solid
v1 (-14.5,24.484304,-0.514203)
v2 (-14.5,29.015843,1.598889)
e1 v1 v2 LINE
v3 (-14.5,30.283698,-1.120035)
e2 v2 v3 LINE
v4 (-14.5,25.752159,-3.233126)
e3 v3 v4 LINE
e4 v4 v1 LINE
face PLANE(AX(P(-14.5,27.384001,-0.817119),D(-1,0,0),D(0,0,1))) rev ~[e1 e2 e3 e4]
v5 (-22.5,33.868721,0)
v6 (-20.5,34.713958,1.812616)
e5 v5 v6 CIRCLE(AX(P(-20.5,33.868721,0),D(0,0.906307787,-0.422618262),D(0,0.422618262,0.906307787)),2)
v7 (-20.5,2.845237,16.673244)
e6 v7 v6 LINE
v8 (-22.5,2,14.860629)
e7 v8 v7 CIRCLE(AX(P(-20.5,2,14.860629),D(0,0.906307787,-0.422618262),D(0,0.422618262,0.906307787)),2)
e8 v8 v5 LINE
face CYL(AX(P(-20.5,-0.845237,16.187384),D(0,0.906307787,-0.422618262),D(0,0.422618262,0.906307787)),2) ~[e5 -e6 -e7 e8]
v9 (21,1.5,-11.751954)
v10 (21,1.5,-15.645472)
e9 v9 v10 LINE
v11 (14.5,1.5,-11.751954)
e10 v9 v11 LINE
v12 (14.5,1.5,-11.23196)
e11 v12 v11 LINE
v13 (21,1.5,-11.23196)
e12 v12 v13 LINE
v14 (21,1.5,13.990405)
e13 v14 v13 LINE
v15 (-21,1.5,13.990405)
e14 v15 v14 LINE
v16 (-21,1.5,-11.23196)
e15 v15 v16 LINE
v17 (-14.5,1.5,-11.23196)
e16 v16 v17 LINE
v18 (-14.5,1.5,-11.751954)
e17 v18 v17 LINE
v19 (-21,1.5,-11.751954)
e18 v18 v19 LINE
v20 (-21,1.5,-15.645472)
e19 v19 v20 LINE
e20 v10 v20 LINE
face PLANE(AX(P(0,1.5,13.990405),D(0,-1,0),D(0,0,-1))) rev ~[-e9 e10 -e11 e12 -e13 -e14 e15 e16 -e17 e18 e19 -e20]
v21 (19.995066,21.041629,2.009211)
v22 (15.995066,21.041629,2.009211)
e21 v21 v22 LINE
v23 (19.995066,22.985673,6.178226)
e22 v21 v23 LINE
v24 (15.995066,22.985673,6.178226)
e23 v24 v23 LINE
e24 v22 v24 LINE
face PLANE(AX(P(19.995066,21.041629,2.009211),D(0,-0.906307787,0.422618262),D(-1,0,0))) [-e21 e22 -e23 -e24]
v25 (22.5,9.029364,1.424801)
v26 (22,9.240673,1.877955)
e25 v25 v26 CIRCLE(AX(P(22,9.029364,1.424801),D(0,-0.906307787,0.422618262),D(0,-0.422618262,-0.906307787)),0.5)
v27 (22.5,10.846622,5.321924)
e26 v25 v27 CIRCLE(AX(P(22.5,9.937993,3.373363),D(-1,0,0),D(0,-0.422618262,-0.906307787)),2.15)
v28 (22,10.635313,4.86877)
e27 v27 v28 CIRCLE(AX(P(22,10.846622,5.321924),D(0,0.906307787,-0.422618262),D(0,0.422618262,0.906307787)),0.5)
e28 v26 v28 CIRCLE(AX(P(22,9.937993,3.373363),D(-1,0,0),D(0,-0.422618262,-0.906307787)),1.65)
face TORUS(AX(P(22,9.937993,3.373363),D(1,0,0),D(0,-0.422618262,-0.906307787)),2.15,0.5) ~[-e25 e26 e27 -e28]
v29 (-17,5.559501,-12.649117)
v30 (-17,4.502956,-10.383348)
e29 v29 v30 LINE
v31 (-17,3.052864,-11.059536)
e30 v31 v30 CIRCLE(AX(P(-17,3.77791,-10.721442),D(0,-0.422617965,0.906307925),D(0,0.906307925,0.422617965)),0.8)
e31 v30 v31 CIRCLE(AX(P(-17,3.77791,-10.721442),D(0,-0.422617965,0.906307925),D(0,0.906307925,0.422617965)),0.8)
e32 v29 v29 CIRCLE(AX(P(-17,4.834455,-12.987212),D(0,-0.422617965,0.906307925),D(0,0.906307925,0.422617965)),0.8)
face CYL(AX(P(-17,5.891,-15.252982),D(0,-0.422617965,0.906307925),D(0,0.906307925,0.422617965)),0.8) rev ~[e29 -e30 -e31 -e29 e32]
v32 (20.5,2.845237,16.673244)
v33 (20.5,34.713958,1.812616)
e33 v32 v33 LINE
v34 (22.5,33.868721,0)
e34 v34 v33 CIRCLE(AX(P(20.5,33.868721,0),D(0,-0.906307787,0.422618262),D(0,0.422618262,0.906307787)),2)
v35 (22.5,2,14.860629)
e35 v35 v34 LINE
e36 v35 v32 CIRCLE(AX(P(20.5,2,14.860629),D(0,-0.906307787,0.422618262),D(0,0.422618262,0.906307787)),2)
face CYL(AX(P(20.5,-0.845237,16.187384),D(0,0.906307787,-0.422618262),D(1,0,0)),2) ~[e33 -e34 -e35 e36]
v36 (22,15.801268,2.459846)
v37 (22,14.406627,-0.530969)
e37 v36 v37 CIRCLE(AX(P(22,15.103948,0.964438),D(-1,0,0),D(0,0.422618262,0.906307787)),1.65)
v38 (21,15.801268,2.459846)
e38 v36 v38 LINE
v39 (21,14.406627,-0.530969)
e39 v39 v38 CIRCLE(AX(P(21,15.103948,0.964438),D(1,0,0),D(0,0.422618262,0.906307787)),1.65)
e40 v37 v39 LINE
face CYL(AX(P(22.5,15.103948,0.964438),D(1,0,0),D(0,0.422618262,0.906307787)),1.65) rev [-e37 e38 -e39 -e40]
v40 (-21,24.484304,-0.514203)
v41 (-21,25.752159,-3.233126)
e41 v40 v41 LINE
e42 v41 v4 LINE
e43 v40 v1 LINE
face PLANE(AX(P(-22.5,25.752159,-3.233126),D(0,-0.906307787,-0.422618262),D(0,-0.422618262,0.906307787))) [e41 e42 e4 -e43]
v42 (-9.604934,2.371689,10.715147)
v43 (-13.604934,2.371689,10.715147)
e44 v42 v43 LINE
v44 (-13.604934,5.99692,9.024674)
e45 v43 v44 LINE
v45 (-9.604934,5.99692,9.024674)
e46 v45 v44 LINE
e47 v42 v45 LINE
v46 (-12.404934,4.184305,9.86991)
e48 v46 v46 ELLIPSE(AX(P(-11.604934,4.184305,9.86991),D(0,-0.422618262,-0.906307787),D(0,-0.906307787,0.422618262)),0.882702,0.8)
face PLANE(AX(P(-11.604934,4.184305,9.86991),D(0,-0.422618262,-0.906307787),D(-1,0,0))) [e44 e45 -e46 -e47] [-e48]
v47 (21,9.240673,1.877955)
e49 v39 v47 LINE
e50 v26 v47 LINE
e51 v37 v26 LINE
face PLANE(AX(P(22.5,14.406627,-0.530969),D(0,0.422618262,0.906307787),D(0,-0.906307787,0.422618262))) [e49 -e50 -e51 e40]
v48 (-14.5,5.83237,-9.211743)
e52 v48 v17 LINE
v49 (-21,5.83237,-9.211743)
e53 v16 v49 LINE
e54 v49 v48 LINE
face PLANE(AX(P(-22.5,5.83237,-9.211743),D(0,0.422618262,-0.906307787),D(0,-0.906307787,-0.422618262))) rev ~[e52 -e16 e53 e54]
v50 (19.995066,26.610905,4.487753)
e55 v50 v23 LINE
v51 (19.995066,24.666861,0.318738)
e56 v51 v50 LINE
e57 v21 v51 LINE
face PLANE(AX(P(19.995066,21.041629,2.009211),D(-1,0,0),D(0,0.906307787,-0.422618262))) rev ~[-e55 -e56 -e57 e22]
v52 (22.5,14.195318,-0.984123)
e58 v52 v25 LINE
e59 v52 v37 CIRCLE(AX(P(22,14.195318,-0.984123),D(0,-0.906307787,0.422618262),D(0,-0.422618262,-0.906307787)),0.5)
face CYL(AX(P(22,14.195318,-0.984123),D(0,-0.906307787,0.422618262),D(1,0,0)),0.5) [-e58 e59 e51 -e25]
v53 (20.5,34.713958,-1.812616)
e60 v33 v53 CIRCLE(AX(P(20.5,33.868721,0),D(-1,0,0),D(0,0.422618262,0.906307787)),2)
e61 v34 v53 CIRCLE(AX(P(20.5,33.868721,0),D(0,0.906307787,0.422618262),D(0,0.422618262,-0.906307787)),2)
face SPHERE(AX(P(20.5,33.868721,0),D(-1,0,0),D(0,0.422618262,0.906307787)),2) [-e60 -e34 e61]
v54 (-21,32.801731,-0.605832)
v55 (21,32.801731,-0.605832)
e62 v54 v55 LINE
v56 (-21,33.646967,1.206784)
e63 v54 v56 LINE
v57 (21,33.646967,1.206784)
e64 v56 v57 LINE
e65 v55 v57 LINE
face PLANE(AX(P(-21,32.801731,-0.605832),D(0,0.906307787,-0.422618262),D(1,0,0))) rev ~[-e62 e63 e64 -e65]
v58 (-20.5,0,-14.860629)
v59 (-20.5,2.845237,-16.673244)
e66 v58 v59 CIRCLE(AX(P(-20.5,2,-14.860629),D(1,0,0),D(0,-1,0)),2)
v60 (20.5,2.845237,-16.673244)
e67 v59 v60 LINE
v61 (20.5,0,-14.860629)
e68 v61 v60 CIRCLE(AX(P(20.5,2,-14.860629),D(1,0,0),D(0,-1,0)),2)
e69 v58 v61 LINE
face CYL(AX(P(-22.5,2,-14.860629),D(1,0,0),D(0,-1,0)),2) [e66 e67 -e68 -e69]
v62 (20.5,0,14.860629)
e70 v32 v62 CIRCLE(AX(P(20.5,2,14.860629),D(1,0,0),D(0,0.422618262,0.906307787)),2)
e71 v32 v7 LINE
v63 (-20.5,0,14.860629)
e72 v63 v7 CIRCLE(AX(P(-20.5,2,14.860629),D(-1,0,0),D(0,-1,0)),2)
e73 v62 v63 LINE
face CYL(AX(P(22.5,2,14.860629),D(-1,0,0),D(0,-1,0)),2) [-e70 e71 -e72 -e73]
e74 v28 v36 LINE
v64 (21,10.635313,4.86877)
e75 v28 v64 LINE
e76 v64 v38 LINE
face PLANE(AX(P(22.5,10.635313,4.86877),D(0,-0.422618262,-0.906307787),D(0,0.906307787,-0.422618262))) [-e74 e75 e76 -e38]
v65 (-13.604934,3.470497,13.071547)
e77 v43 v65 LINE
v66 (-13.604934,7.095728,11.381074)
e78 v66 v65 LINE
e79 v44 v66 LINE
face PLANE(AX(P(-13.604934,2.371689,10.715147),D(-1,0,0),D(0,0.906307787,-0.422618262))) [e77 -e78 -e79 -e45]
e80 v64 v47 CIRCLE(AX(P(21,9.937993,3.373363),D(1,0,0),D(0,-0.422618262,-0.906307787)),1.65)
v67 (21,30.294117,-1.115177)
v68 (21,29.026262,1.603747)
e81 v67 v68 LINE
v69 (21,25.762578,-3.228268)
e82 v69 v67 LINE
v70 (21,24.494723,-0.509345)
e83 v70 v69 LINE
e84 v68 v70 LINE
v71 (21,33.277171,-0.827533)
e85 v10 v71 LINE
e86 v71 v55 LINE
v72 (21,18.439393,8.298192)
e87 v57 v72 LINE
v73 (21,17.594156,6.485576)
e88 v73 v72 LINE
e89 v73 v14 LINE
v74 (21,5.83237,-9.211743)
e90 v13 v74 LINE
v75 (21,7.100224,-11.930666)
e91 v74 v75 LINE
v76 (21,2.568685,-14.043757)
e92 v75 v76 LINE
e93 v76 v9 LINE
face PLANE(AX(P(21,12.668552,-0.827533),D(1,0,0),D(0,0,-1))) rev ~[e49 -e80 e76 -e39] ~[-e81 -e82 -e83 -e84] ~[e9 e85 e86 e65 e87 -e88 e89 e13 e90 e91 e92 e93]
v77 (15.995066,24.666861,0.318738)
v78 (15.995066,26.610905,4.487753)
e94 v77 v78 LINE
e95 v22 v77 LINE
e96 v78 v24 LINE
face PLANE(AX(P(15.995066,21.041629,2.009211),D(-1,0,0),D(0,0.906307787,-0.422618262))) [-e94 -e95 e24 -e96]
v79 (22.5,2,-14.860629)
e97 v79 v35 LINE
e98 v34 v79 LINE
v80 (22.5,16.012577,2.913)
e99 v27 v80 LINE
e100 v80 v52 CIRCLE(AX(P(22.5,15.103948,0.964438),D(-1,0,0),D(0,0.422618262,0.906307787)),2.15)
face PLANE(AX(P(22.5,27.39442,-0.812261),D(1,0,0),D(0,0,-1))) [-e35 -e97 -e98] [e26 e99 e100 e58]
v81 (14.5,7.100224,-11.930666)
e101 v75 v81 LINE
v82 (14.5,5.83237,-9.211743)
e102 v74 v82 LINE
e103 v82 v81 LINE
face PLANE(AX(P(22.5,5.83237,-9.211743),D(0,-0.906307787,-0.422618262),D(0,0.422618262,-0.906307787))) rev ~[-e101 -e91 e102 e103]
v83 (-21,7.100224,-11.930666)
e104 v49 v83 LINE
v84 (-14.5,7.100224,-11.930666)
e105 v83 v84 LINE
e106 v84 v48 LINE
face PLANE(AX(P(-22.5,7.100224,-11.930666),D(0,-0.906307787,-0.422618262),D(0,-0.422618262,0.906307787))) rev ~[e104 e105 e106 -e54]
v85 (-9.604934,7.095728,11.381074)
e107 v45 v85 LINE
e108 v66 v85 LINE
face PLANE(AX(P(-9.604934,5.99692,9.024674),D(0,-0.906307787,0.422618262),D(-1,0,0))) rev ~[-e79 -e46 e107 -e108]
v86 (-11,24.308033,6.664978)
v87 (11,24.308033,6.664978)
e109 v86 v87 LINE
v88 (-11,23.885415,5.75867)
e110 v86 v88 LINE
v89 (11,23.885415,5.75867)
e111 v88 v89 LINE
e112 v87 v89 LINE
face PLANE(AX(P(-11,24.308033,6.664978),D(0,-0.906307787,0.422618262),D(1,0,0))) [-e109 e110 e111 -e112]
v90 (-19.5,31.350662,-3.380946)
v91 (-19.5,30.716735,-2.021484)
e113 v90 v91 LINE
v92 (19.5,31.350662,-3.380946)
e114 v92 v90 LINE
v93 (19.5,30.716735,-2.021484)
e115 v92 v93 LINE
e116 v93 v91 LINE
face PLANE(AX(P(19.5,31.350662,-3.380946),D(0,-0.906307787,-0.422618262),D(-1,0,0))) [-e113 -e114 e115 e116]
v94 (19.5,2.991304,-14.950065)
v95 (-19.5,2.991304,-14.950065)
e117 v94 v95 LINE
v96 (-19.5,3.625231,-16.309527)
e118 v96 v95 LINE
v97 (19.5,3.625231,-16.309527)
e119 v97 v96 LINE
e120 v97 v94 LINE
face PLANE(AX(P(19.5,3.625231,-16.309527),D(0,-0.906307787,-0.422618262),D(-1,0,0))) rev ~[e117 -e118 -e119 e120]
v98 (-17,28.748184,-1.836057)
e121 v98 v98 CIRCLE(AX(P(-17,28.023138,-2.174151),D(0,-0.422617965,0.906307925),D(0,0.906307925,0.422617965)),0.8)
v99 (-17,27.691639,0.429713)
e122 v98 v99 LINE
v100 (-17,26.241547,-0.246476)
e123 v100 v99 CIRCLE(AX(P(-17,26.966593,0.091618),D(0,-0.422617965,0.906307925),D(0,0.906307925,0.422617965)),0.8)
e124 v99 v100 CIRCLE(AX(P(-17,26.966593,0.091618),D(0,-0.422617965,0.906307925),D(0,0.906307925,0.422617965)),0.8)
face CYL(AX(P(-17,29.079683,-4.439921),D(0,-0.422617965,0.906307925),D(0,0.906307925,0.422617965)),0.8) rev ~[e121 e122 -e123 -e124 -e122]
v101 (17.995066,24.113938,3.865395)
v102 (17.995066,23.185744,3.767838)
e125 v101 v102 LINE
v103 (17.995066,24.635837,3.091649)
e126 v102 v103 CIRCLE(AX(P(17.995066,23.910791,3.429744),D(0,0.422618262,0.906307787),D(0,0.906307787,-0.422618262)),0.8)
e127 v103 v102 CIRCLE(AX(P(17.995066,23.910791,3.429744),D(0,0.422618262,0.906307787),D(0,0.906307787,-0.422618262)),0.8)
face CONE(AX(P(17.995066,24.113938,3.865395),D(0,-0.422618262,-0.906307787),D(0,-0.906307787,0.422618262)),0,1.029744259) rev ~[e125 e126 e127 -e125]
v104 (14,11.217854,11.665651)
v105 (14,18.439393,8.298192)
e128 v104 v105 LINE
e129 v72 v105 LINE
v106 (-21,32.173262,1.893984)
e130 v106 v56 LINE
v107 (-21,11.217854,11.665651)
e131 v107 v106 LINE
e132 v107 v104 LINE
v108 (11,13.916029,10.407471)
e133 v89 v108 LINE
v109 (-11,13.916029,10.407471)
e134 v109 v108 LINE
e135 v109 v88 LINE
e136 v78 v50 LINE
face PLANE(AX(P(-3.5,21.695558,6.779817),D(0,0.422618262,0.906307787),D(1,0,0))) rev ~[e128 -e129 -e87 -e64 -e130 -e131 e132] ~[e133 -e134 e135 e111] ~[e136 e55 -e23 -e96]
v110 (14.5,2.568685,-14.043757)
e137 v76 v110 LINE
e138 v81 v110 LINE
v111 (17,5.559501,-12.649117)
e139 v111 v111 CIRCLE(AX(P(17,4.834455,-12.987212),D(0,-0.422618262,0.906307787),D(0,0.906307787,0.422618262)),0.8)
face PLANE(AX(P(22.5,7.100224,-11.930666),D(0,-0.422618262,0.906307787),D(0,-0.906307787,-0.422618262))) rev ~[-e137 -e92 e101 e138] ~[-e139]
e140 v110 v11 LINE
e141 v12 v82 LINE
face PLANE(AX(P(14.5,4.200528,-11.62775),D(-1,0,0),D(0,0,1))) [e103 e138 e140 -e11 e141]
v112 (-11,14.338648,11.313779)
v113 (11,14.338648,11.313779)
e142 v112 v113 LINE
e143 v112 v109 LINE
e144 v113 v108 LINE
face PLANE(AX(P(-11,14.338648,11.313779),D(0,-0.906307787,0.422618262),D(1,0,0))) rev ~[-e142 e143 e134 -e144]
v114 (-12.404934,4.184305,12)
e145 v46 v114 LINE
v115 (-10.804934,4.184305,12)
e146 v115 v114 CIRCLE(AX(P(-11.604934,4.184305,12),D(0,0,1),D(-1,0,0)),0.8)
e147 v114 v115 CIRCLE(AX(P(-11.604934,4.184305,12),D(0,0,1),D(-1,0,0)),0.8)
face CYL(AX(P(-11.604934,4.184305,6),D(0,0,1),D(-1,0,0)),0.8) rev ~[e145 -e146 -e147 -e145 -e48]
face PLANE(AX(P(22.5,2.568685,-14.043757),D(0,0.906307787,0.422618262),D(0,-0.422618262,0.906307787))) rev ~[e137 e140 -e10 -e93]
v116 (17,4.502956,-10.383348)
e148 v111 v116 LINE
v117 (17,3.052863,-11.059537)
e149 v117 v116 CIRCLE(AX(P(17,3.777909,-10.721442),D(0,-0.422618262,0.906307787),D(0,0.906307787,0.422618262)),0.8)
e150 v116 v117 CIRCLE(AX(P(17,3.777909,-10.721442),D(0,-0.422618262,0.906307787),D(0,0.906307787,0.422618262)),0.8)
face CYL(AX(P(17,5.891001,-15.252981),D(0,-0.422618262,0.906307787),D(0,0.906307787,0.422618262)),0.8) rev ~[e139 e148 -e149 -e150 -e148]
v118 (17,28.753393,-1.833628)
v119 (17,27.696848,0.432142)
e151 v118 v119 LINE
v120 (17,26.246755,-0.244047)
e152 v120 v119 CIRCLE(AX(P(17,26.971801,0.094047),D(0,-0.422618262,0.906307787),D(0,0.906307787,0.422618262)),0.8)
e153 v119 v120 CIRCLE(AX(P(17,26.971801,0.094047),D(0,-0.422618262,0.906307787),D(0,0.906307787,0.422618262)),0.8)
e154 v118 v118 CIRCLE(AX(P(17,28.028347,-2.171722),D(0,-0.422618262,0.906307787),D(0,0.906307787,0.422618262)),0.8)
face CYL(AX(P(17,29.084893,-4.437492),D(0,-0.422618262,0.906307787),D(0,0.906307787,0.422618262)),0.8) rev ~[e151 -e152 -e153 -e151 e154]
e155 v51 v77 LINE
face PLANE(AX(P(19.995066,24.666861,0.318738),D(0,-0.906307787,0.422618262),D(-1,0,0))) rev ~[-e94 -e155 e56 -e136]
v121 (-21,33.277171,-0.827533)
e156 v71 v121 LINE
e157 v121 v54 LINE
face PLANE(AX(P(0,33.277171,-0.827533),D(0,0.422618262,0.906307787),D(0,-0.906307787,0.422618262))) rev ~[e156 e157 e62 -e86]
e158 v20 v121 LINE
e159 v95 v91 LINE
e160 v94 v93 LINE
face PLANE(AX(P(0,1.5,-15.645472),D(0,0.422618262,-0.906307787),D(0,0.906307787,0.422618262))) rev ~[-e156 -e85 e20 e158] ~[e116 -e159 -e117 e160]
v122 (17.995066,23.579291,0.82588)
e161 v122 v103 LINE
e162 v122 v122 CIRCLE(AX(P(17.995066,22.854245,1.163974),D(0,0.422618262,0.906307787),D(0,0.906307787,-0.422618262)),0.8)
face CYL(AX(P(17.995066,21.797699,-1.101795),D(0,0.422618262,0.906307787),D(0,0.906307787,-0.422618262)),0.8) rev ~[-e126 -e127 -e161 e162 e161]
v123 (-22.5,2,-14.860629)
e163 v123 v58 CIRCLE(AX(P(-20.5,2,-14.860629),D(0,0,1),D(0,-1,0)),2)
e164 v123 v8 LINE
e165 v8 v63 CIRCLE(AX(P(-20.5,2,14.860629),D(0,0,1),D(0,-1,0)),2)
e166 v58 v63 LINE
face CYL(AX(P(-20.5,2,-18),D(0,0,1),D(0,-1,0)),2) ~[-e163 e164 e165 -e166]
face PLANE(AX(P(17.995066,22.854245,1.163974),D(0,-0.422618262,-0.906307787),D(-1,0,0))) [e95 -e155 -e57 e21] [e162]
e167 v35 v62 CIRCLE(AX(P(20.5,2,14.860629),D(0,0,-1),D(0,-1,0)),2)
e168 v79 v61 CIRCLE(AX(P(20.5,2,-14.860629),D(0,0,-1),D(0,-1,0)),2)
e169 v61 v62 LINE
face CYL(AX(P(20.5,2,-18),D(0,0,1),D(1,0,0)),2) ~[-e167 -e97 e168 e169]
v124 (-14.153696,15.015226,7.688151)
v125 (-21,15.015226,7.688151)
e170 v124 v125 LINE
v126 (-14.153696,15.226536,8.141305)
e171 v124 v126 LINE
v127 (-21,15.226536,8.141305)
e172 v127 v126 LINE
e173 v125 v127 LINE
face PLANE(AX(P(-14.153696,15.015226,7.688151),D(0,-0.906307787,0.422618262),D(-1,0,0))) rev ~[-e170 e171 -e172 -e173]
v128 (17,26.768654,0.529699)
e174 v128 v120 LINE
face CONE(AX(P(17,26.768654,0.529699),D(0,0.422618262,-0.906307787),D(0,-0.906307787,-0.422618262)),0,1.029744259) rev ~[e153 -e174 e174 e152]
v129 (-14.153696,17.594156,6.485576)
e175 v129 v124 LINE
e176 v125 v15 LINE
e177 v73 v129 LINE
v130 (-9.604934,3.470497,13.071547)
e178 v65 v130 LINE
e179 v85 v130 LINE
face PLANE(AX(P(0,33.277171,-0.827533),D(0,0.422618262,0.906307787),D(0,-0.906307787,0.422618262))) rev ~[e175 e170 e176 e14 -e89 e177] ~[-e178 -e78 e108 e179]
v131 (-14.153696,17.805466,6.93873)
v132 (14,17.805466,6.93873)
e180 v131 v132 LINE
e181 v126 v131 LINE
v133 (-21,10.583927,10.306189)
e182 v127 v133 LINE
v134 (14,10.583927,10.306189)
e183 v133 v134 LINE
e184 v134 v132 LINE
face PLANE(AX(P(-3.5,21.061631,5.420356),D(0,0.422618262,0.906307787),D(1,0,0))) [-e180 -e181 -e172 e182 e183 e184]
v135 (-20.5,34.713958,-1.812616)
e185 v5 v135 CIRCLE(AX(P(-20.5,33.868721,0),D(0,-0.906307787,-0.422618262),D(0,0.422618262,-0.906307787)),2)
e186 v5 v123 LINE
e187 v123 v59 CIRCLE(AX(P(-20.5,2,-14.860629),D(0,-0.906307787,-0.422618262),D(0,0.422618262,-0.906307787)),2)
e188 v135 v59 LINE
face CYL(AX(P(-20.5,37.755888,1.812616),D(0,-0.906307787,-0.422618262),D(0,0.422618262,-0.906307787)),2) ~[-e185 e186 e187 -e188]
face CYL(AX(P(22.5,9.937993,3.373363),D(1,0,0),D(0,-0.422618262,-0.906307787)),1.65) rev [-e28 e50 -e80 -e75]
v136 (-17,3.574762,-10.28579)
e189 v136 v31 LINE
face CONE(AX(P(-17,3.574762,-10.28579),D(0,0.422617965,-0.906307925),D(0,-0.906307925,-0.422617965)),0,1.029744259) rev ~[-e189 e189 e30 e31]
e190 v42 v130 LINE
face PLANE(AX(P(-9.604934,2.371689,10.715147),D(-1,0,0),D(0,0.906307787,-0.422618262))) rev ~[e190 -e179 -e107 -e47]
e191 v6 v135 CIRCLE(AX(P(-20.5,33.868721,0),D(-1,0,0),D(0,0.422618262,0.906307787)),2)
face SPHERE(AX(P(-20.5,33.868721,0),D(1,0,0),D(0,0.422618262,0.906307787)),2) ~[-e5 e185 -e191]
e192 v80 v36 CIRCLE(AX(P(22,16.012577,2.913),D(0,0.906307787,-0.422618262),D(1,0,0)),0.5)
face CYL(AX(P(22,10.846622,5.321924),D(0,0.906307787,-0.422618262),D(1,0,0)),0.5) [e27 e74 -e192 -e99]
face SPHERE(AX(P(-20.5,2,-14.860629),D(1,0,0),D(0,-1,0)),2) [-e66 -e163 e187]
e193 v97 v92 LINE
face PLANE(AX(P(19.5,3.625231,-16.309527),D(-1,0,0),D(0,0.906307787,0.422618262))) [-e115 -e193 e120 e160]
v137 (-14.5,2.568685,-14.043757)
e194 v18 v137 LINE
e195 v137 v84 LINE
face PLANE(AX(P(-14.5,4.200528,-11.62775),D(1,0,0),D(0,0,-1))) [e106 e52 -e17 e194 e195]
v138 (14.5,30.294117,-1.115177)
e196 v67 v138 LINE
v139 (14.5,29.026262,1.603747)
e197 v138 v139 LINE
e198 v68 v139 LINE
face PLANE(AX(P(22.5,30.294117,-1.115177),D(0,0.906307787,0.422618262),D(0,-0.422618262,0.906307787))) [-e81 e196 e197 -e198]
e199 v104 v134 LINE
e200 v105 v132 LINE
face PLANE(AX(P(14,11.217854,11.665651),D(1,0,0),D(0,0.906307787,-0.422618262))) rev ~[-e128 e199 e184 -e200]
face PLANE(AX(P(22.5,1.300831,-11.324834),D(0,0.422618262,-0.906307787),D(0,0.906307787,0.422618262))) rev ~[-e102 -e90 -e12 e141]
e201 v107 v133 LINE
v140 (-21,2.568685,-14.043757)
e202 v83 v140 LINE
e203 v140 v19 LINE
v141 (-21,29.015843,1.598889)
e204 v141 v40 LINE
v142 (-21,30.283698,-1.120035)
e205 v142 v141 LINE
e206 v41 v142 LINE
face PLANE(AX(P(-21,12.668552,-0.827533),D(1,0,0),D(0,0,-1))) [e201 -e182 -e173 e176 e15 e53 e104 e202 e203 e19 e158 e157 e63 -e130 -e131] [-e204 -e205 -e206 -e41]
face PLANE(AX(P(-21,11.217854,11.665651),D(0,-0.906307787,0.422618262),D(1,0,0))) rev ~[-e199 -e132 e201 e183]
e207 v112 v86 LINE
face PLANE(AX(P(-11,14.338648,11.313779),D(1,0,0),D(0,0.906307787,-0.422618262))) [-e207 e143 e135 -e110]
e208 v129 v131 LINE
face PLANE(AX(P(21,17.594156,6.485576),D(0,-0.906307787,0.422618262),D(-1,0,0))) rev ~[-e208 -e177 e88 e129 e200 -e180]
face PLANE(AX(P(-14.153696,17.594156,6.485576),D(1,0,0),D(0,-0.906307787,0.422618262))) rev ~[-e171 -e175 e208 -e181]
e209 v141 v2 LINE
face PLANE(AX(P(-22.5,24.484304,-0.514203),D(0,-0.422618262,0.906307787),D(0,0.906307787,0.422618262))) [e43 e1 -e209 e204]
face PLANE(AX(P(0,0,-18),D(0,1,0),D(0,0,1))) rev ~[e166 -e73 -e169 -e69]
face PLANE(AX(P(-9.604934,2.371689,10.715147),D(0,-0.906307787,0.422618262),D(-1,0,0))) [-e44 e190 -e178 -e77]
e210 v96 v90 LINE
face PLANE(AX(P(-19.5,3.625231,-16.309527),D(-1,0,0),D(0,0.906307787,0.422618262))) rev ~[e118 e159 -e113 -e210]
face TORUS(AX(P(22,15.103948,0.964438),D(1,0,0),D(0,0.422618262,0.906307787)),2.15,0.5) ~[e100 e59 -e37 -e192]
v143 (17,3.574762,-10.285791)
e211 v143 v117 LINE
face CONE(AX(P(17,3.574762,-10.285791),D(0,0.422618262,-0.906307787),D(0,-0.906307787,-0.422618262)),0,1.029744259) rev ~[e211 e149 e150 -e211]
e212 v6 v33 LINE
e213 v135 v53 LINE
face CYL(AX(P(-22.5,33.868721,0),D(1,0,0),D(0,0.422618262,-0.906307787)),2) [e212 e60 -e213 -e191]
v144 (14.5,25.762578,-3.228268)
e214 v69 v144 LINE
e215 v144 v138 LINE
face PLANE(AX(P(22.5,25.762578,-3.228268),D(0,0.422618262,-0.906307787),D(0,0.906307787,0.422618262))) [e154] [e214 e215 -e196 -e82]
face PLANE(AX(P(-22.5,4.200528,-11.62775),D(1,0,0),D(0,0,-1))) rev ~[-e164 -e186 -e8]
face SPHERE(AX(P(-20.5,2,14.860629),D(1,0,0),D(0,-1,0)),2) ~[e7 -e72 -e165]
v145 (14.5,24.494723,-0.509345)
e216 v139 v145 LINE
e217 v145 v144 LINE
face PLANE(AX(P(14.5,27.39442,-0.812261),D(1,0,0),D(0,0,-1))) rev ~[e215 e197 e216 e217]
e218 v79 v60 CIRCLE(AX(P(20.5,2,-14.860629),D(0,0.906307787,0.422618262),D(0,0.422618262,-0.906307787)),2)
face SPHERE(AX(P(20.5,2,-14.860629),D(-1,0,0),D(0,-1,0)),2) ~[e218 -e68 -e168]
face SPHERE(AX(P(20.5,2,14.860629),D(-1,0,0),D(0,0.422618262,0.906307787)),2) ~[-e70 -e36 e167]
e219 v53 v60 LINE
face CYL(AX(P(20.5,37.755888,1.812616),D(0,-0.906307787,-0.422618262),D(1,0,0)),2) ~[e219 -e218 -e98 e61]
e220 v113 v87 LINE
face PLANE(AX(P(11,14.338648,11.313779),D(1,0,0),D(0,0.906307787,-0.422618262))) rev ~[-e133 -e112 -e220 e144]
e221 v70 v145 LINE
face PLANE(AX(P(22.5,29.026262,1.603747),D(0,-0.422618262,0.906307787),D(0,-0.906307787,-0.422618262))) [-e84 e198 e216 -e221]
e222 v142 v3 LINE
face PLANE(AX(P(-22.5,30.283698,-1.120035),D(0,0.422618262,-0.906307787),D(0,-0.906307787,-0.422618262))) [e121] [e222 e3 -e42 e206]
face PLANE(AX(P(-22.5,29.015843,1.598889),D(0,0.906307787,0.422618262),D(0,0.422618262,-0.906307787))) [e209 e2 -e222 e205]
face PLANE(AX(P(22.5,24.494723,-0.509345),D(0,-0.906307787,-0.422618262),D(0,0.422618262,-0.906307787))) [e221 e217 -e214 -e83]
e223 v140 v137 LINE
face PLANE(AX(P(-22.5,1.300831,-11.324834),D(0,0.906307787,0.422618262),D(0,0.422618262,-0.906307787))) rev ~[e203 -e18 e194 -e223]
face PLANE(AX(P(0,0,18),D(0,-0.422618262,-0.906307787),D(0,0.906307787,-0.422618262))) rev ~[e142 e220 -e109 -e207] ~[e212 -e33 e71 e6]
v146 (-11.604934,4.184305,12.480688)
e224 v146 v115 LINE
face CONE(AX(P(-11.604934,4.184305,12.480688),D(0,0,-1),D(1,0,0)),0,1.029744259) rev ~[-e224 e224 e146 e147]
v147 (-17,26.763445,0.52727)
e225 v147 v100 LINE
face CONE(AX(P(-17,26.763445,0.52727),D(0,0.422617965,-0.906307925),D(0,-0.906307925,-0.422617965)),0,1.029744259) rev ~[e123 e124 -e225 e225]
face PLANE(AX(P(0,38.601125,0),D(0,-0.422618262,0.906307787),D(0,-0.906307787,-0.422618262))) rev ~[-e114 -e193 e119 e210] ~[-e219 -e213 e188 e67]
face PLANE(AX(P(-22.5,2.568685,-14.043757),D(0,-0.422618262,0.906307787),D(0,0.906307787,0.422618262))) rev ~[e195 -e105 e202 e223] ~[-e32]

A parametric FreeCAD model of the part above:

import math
import FreeCAD as App
import Part
import Sketcher
from FreeCAD import Vector
Q = App.Units.Quantity


def edges_at(feature, points):
    """Names of the edges that pass closest to the given points."""
    edges = feature.Shape.Edges
    near = lambda p: min(range(len(edges)), key=lambda i: edges[i].distToShape(Part.Vertex(*p))[0])
    return sorted({f"Edge{near(p) + 1}" for p in points})


def add_polygon(sketch, points):
    """Adds a closed chain of lines whose ends are joined by coincident constraints."""
    first, n = sketch.GeometryCount, len(points)
    for a, b in zip(points, points[1:] + points[:1]):
        sketch.addGeometry(Part.LineSegment(App.Vector(*a, 0), App.Vector(*b, 0)), False)
    for i in range(n):
        sketch.addConstraint(Sketcher.Constraint("Coincident", first + i, 2, first + (i + 1) % n, 1))

doc = App.newDocument("Part")
body = doc.addObject("PartDesign::Body", "Body")

# Sketch on YZ plane
sketch1 = body.newObject("Sketcher::SketchObject", "Sketch")
sketch1.AttachmentSupport = (doc.getObject("YZ_Plane"), [""])
sketch1.MapMode = "FlatFace"
add_polygon(sketch1, [(0, 18), (0, -18), (38.601125, 0)])  # lines 0-2
sketch1.addConstraint([
    Sketcher.Constraint("Vertical", 0),
    Sketcher.Constraint("Symmetric", 0, 2, 2, 2, -1, 1),
    Sketcher.Constraint("PointOnObject", 1, 2, -1),
    Sketcher.Constraint("DistanceY", 0, 2, 0, 1, 36.0),
    Sketcher.Constraint("Angle", 1, Q("25 deg")),
])
pad1 = body.newObject("PartDesign::Pad", "Pad")
pad1.Profile = sketch1
pad1.Length = 45
pad1.Midplane = True

# Sketch on an angled plane
sketch2 = body.newObject("Sketcher::SketchObject", "Sketch001")
sketch2.Placement = App.Placement(Vector(0, 6.8944, 14.785088), App.Rotation(Vector(1, 0, 0), Vector(0, 0.906307787, -0.422618262), Vector(0, 0.422618262, 0.906307787), "ZXY"))
add_polygon(sketch2, [(-11, 19.213819), (-11, 8.213819), (11, 8.213819), (11, 19.213819)])  # lines 0-3
sketch2.addConstraint([
    Sketcher.Constraint("Vertical", 0),
    Sketcher.Constraint("Horizontal", 1),
    Sketcher.Constraint("Vertical", 2),
    Sketcher.Constraint("Horizontal", 3),
    Sketcher.Constraint("DistanceX", 1, 1, 1, 2, 22.0),
    Sketcher.Constraint("DistanceY", 0, 2, 0, 1, 11.0),
    Sketcher.Constraint("DistanceX", 0, 2, -1, 1, 11.0),
    Sketcher.Constraint("DistanceY", -1, 1, 0, 2, 8.213819),
])
pocket1 = body.newObject("PartDesign::Pocket", "Pocket")
pocket1.Profile = sketch2
pocket1.Length = 1

# Sketch on an angled plane
sketch3 = body.newObject("Sketcher::SketchObject", "Sketch002")
sketch3.Placement = App.Placement(Vector(0, 6.471782, 13.878781), App.Rotation(Vector(1, 0, 0), Vector(0, 0.906307787, -0.422618262), Vector(0, 0.422618262, 0.906307787), "ZXY"))
add_polygon(sketch3, [(14, 5.236711), (14, 28.358446), (-21, 28.358446), (-21, 5.236711)])  # lines 0-3
sketch3.addConstraint([
    Sketcher.Constraint("Vertical", 0),
    Sketcher.Constraint("Horizontal", 1),
    Sketcher.Constraint("Vertical", 2),
    Sketcher.Constraint("Horizontal", 3),
    Sketcher.Constraint("DistanceX", 1, 2, 1, 1, 35.0),
    Sketcher.Constraint("DistanceX", -1, 1, 0, 2, 14.0),
    Sketcher.Constraint("DistanceY", 0, 1, 0, 2, 23.121734),
    Sketcher.Constraint("DistanceY", -1, 1, 2, 2, 5.236711),
])
pocket2 = body.newObject("PartDesign::Pocket", "Pocket001")
pocket2.Profile = sketch3
pocket2.Length = 1.5

# Sketch on YZ plane
sketch4 = body.newObject("Sketcher::SketchObject", "Sketch003")
sketch4.AttachmentSupport = (doc.getObject("YZ_Plane"), [""])
sketch4.MapMode = "FlatFace"
add_polygon(sketch4, [(33.277171, -0.827533), (1.5, 13.990405), (1.5, -15.645472)])  # lines 0-2
sketch4.addConstraint([
    Sketcher.Constraint("Vertical", 1),
    Sketcher.Constraint("Equal", 0, 2),
    Sketcher.Constraint("Angle", 0, Q("155 deg")),
    Sketcher.Constraint("DistanceX", -1, 1, 0, 2, 1.5),
    Sketcher.Constraint("Distance", 0, 35.062229),
    Sketcher.Constraint("DistanceY", 1, 2, -1, 1, 15.645472),
])
pocket3 = body.newObject("PartDesign::Pocket", "Pocket002")
pocket3.Profile = sketch4
pocket3.Length = 42
pocket3.Midplane = True

# Sketch on an angled plane
sketch5 = body.newObject("Sketcher::SketchObject", "Sketch004")
sketch5.Placement = App.Placement(Vector(0, 6.8944, -14.785088), App.Rotation(Vector(-1, 0, 0), Vector(0, 0.906307787, 0.422618262), Vector(0, 0.422618262, -0.906307787), "ZXY"))
add_polygon(sketch5, [(-19.5, 26.9845), (-19.5, -3.607129), (19.5, -3.607129), (19.5, 26.9845)])  # lines 0-3
sketch5.addConstraint([
    Sketcher.Constraint("Vertical", 0),
    Sketcher.Constraint("Horizontal", 1),
    Sketcher.Constraint("Vertical", 2),
    Sketcher.Constraint("Horizontal", 3),
    Sketcher.Constraint("DistanceX", 1, 1, 1, 2, 39.0),
    Sketcher.Constraint("DistanceX", 0, 2, -1, 1, 19.5),
    Sketcher.Constraint("DistanceY", 0, 2, 0, 1, 30.591629),
    Sketcher.Constraint("DistanceY", -1, 1, 2, 2, 26.9845),
])
pocket4 = body.newObject("PartDesign::Pocket", "Pocket003")
pocket4.Profile = sketch5
pocket4.Length = 1.5

# Sketch on an angled plane
sketch6 = body.newObject("Sketcher::SketchObject", "Sketch005")
sketch6.Placement = App.Placement(Vector(0, 5.626545, 12.066165), App.Rotation(Vector(-1, 0, 0), Vector(0, 0.906307787, -0.422618262), Vector(0, -0.422618262, -0.906307787), "ZXY"))
add_polygon(sketch6, [(-21, 13.204798), (14.153696, 13.204798), (14.153696, 10.359264), (21, 10.359264), (21, 29.9845), (-21, 29.9845)])  # lines 0-5
sketch6.addConstraint([
    Sketcher.Constraint("Horizontal", 0),
    Sketcher.Constraint("Vertical", 1),
    Sketcher.Constraint("Horizontal", 2),
    Sketcher.Constraint("Vertical", 3),
    Sketcher.Constraint("Horizontal", 4),
    Sketcher.Constraint("Vertical", 5),
    Sketcher.Constraint("DistanceX", 4, 2, 4, 1, 42.0),
    Sketcher.Constraint("DistanceX", -1, 1, 2, 2, 21.0),
    Sketcher.Constraint("DistanceY", 5, 2, 5, 1, 16.779702),
    Sketcher.Constraint("DistanceY", -1, 1, 3, 2, 29.9845),
    Sketcher.Constraint("DistanceX", 0, 1, 0, 2, 35.153696),
    Sketcher.Constraint("DistanceY", 1, 2, 1, 1, 2.845534),
])
pocket5 = body.newObject("PartDesign::Pocket", "Pocket004")
pocket5.Profile = sketch6
pocket5.Length = 2

# Sketch on an angled plane
sketch7 = body.newObject("Sketcher::SketchObject", "Sketch006")
sketch7.Placement = App.Placement(Vector(0, 4.527738, 9.709765), App.Rotation(Vector(-1, 0, 0), Vector(0, 0.906307787, -0.422618262), Vector(0, -0.422618262, -0.906307787), "ZXY"))
add_polygon(sketch7, [(-19.995066, 22.221064), (-19.995066, 18.221064), (-15.995066, 18.221064), (-15.995066, 22.221064)])  # lines 0-3
add_polygon(sketch7, [(9.604934, 1.621064), (9.604934, -2.378936), (13.604934, -2.378936), (13.604934, 1.621064)])  # lines 4-7
sketch7.addConstraint([
    Sketcher.Constraint("Vertical", 0),
    Sketcher.Constraint("Horizontal", 1),
    Sketcher.Constraint("Vertical", 2),
    Sketcher.Constraint("Horizontal", 3),
    Sketcher.Constraint("Vertical", 4),
    Sketcher.Constraint("Horizontal", 5),
    Sketcher.Constraint("Vertical", 6),
    Sketcher.Constraint("Horizontal", 7),
    Sketcher.Constraint("Equal", 3, 5),
    Sketcher.Constraint("Equal", 7, 0),
    Sketcher.Constraint("Equal", 2, 4),
    Sketcher.Constraint("DistanceX", 1, 1, 1, 2, 4.0),
    Sketcher.Constraint("DistanceX", 1, 2, 4, 2, 25.6),
    Sketcher.Constraint("DistanceY", 4, 2, 1, 2, 20.6),
    Sketcher.Constraint("DistanceX", 0, 2, -1, 1, 19.995066),
    Sketcher.Constraint("DistanceY", -1, 1, 0, 2, 18.221064),
])
pad2 = body.newObject("PartDesign::Pad", "Pad001")
pad2.Profile = sketch7
pad2.Length = 5
pad2.Reversed = True

# Sketch on YZ plane
sketch8 = body.newObject("Sketcher::SketchObject", "Sketch007")
sketch8.AttachmentSupport = (doc.getObject("YZ_Plane"), [""])
sketch8.MapMode = "FlatFace"
sketch8.AttachmentOffset = App.Placement(Vector(0, 0, 22.5), App.Rotation())
sketch8.addGeometry([
    Part.LineSegment(Vector(15.801268, 2.459846, 0), Vector(10.635313, 4.86877, 0)),
    Part.ArcOfCircle(Part.Circle(Vector(9.937993, 3.373363, 0), Vector(0, 0, 1), 1.65), math.radians(65), math.radians(245)),
    Part.LineSegment(Vector(9.240673, 1.877955, 0), Vector(14.406627, -0.530969, 0)),
    Part.ArcOfCircle(Part.Circle(Vector(15.103948, 0.964438, 0), Vector(0, 0, 1), 1.65), math.radians(-115), math.radians(65)),
], False)
sketch8.addConstraint([
    Sketcher.Constraint("Tangent", 0, 2, 1, 1),
    Sketcher.Constraint("Tangent", 1, 2, 2, 1),
    Sketcher.Constraint("Tangent", 2, 2, 3, 1),
    Sketcher.Constraint("Tangent", 3, 2, 0, 1),
    Sketcher.Constraint("Equal", 1, 3),
    Sketcher.Constraint("Angle", 0, Q("155 deg")),
    Sketcher.Constraint("Radius", 1, 1.65),
    Sketcher.Constraint("Distance", 0, 5.7),
    Sketcher.Constraint("DistanceY", -1, 1, 3, 3, 0.964438),
    Sketcher.Constraint("DistanceX", -1, 1, 1, 3, 9.937993),
])
pocket6 = body.newObject("PartDesign::Pocket", "Pocket005")
pocket6.Profile = sketch8
pocket6.Length = 5

# Sketch on YZ plane
sketch9 = body.newObject("Sketcher::SketchObject", "Sketch008")
sketch9.AttachmentSupport = (doc.getObject("YZ_Plane"), [""])
sketch9.MapMode = "FlatFace"
sketch9.AttachmentOffset = App.Placement(Vector(0, 0, -22.5), App.Rotation())
add_polygon(sketch9, [(30.283698, -1.120035), (25.752159, -3.233126), (24.484304, -0.514203), (29.015843, 1.598889)])  # lines 0-3
sketch9.addConstraint([
    Sketcher.Constraint("Perpendicular", 0, 1),
    Sketcher.Constraint("Perpendicular", 1, 2),
    Sketcher.Constraint("Perpendicular", 2, 3),
    Sketcher.Constraint("Angle", 0, Q("-155 deg")),
    Sketcher.Constraint("Distance", 0, 5.0),
    Sketcher.Constraint("Distance", 1, 3.0),
    Sketcher.Constraint("DistanceX", -1, 1, 3, 2, 30.283698),
    Sketcher.Constraint("DistanceY", -1, 1, 2, 2, 1.598889),
])
pad3 = body.newObject("PartDesign::Pad", "Pad002")
pad3.Profile = sketch9
pad3.Length = 8

# Sketch on YZ plane
sketch10 = body.newObject("Sketcher::SketchObject", "Sketch009")
sketch10.AttachmentSupport = (doc.getObject("YZ_Plane"), [""])
sketch10.MapMode = "FlatFace"
sketch10.AttachmentOffset = App.Placement(Vector(0, 0, 22.5), App.Rotation())
add_polygon(sketch10, [(1.300831, -11.324834), (2.568685, -14.043757), (7.100224, -11.930666), (5.83237, -9.211743)])  # lines 0-3
sketch10.addConstraint([
    Sketcher.Constraint("Perpendicular", 0, 1),
    Sketcher.Constraint("Perpendicular", 1, 2),
    Sketcher.Constraint("Perpendicular", 2, 3),
    Sketcher.Constraint("Angle", 0, Q("-65 deg")),
    Sketcher.Constraint("Distance", 0, 3.0),
    Sketcher.Constraint("Distance", 1, 5.0),
    Sketcher.Constraint("DistanceX", -1, 1, 2, 2, 5.83237),
    Sketcher.Constraint("DistanceY", 0, 2, -1, 1, 14.043757),
])
pad4 = body.newObject("PartDesign::Pad", "Pad003")
pad4.Profile = sketch10
pad4.Length = 8
pad4.Reversed = True

# Sketch on an angled plane
sketch11 = body.newObject("Sketcher::SketchObject", "Sketch010")
sketch11.Placement = App.Placement(Vector(0, 5.837854, -12.519319), App.Rotation(Vector(0, -0.906307787, -0.422618262), Vector(-1, 0, 0), Vector(0, 0.422618262, -0.906307787), "ZXY"))
sketch11.addGeometry(Part.Circle(Vector(1.107129, -17, 0), Vector(0, 0, 1), 0.8), False)
sketch11.addConstraint([
    Sketcher.Constraint("Diameter", 0, 1.6),
    Sketcher.Constraint("DistanceY", 0, 3, -1, 1, 17.0),
    Sketcher.Constraint("DistanceX", -1, 1, 0, 3, 1.107129),
])
doc.recompute()
hole = body.newObject("PartDesign::Hole", "Hole")
hole.Profile = sketch11
hole.ThreadType = "None"
hole.Diameter = 1.6
hole.DepthType = "Dimension"
hole.Depth = 2.5
hole.DrillPoint = "Angled"
hole.DrillPointAngle = 118

# Sketch on an angled plane
sketch12 = body.newObject("Sketcher::SketchObject", "Sketch011")
sketch12.Placement = App.Placement(Vector(0, 5.837847, -12.519314), App.Rotation(Vector(0, -0.906307925, -0.422617965), Vector(-0.999999999, 0, 0), Vector(0, 0.422617965, -0.906307925), "ZXY"))
sketch12.addGeometry(Part.Circle(Vector(-24.478757, 17, 0), Vector(0, 0, 1), 0.8), False)
sketch12.addConstraint([
    Sketcher.Constraint("Diameter", 0, 1.6),
    Sketcher.Constraint("DistanceY", -1, 1, 0, 3, 17.0),
    Sketcher.Constraint("DistanceX", 0, 3, -1, 1, 24.478757),
])
doc.recompute()
hole2 = body.newObject("PartDesign::Hole", "Hole001")
hole2.Profile = sketch12
hole2.ThreadType = "None"
hole2.Diameter = 1.6
hole2.DepthType = "Dimension"
hole2.Depth = 2.5
hole2.DrillPoint = "Angled"
hole2.DrillPointAngle = 118

# Sketch on an angled plane
sketch13 = body.newObject("Sketcher::SketchObject", "Sketch012")
sketch13.Placement = App.Placement(Vector(0, 4.527738, 9.709765), App.Rotation(Vector(0, -0.906307787, 0.422618262), Vector(-1, 0, 0), Vector(0, -0.422618262, -0.906307787), "ZXY"))
sketch13.addGeometry(Part.Circle(Vector(-20.221064, -17.995066, 0), Vector(0, 0, 1), 0.8), False)
sketch13.addConstraint([
    Sketcher.Constraint("Diameter", 0, 1.6),
    Sketcher.Constraint("DistanceX", 0, 3, -1, 1, 20.221064),
    Sketcher.Constraint("DistanceY", 0, 3, -1, 1, 17.995066),
])
doc.recompute()
hole3 = body.newObject("PartDesign::Hole", "Hole002")
hole3.Profile = sketch13
hole3.ThreadType = "None"
hole3.Diameter = 1.6
hole3.DepthType = "Dimension"
hole3.Depth = 2.5
hole3.DrillPoint = "Angled"
hole3.DrillPointAngle = 118

# Sketch on YZ plane
sketch14 = body.newObject("Sketcher::SketchObject", "Sketch013")
sketch14.AttachmentSupport = (doc.getObject("YZ_Plane"), [""])
sketch14.MapMode = "FlatFace"
sketch14.AttachmentOffset = App.Placement(Vector(0, 0, -22.5), App.Rotation())
add_polygon(sketch14, [(7.100224, -11.930666), (2.568685, -14.043757), (1.300831, -11.324834), (5.83237, -9.211743)])  # lines 0-3
sketch14.addConstraint([
    Sketcher.Constraint("Perpendicular", 0, 1),
    Sketcher.Constraint("Perpendicular", 1, 2),
    Sketcher.Constraint("Perpendicular", 2, 3),
    Sketcher.Constraint("Angle", 0, Q("-155 deg")),
    Sketcher.Constraint("Distance", 0, 5.0),
    Sketcher.Constraint("Distance", 1, 3.0),
    Sketcher.Constraint("DistanceX", -1, 1, 1, 2, 1.300831),
    Sketcher.Constraint("DistanceY", 0, 2, -1, 1, 14.043757),
])
pad5 = body.newObject("PartDesign::Pad", "Pad004")
pad5.Profile = sketch14
pad5.Length = 8

# Sketch on YZ plane
sketch15 = body.newObject("Sketcher::SketchObject", "Sketch014")
sketch15.AttachmentSupport = (doc.getObject("YZ_Plane"), [""])
sketch15.MapMode = "FlatFace"
sketch15.AttachmentOffset = App.Placement(Vector(0, 0, 22.5), App.Rotation())
add_polygon(sketch15, [(30.294117, -1.115177), (29.026262, 1.603747), (24.494723, -0.509345), (25.762578, -3.228268)])  # lines 0-3
sketch15.addConstraint([
    Sketcher.Constraint("Perpendicular", 0, 1),
    Sketcher.Constraint("Perpendicular", 1, 2),
    Sketcher.Constraint("Perpendicular", 2, 3),
    Sketcher.Constraint("Angle", 0, Q("115 deg")),
    Sketcher.Constraint("Distance", 0, 3.0),
    Sketcher.Constraint("Distance", 1, 5.0),
    Sketcher.Constraint("DistanceX", -1, 1, 0, 2, 29.026262),
    Sketcher.Constraint("DistanceY", -1, 1, 0, 2, 1.603747),
])
pad6 = body.newObject("PartDesign::Pad", "Pad005")
pad6.Profile = sketch15
pad6.Length = 8
pad6.Reversed = True

# Sketch on an angled plane
sketch16 = body.newObject("Sketcher::SketchObject", "Sketch015")
sketch16.Placement = App.Placement(Vector(0, 5.837854, -12.519319), App.Rotation(Vector(0, -0.906307787, -0.422618262), Vector(-1, 0, 0), Vector(0, 0.422618262, -0.906307787), "ZXY"))
sketch16.addGeometry(Part.Circle(Vector(-24.4845, -17, 0), Vector(0, 0, 1), 0.8), False)
sketch16.addConstraint([
    Sketcher.Constraint("Diameter", 0, 1.6),
    Sketcher.Constraint("DistanceY", 0, 3, -1, 1, 17.0),
    Sketcher.Constraint("DistanceX", 0, 3, -1, 1, 24.4845),
])
doc.recompute()
hole4 = body.newObject("PartDesign::Hole", "Hole003")
hole4.Profile = sketch16
hole4.ThreadType = "None"
hole4.Diameter = 1.6
hole4.DepthType = "Dimension"
hole4.Depth = 2.5
hole4.DrillPoint = "Angled"
hole4.DrillPointAngle = 118

# Sketch on an angled plane
sketch17 = body.newObject("Sketcher::SketchObject", "Sketch016")
sketch17.Placement = App.Placement(Vector(0, 5.83785, -12.519321), App.Rotation(Vector(0, -0.906307925, -0.422617965), Vector(-0.999999999, 0, 0), Vector(0, 0.422617965, -0.906307925), "ZXY"))
sketch17.addGeometry(Part.Circle(Vector(1.107124, 17, 0), Vector(0, 0, 1), 0.8), False)
sketch17.addConstraint([
    Sketcher.Constraint("Diameter", 0, 1.6),
    Sketcher.Constraint("DistanceY", -1, 1, 0, 3, 17.0),
    Sketcher.Constraint("DistanceX", -1, 1, 0, 3, 1.107124),
])
doc.recompute()
hole5 = body.newObject("PartDesign::Hole", "Hole004")
hole5.Profile = sketch17
hole5.ThreadType = "None"
hole5.Diameter = 1.6
hole5.DepthType = "Dimension"
hole5.Depth = 2.5
hole5.DrillPoint = "Angled"
hole5.DrillPointAngle = 118

# Sketch on XY plane
sketch18 = body.newObject("Sketcher::SketchObject", "Sketch017")
sketch18.AttachmentSupport = (doc.getObject("XY_Plane"), [""])
sketch18.MapMode = "FlatFace"
sketch18.AttachmentOffset = App.Placement(Vector(0, 0, 9), App.Rotation())
sketch18.addGeometry(Part.Circle(Vector(-11.604934, 4.184305, 0), Vector(0, 0, 1), 0.8), False)
sketch18.addConstraint([
    Sketcher.Constraint("Diameter", 0, 1.6),
    Sketcher.Constraint("DistanceX", 0, 3, -1, 1, 11.604934),
    Sketcher.Constraint("DistanceY", -1, 1, 0, 3, 4.184305),
])
doc.recompute()
hole6 = body.newObject("PartDesign::Hole", "Hole005")
hole6.Profile = sketch18
hole6.ThreadType = "None"
hole6.Diameter = 1.6
hole6.DepthType = "Dimension"
hole6.Depth = 3
hole6.DrillPoint = "Angled"
hole6.DrillPointAngle = 118
hole6.Reversed = True
doc.recompute()

fillet = body.newObject("PartDesign::Fillet", "Fillet")
fillet.Base = (hole6, edges_at(hole6, [
    (22.5, 0, 0),
    (-22.5, 0, 0),
    (22.5, 19.301, -9),
    (-22.5, 19.301, 9),
    (-22.5, 19.301, -9),
    (0, 0, -18),
    (0, 0, 18),
    (0, 38.601, 0),
    (22.5, 19.301, 9),
]))
fillet.Radius = 2
doc.recompute()

fillet2 = body.newObject("PartDesign::Fillet", "Fillet001")
fillet2.Base = (fillet, edges_at(fillet, [
    (22.5, 8.443, 4.071),
    (22.5, 11.824, 0.673),
    (22.5, 16.599, 0.267),
    (22.5, 13.218, 3.664),
]))
fillet2.Radius = 0.5

doc.recompute()
